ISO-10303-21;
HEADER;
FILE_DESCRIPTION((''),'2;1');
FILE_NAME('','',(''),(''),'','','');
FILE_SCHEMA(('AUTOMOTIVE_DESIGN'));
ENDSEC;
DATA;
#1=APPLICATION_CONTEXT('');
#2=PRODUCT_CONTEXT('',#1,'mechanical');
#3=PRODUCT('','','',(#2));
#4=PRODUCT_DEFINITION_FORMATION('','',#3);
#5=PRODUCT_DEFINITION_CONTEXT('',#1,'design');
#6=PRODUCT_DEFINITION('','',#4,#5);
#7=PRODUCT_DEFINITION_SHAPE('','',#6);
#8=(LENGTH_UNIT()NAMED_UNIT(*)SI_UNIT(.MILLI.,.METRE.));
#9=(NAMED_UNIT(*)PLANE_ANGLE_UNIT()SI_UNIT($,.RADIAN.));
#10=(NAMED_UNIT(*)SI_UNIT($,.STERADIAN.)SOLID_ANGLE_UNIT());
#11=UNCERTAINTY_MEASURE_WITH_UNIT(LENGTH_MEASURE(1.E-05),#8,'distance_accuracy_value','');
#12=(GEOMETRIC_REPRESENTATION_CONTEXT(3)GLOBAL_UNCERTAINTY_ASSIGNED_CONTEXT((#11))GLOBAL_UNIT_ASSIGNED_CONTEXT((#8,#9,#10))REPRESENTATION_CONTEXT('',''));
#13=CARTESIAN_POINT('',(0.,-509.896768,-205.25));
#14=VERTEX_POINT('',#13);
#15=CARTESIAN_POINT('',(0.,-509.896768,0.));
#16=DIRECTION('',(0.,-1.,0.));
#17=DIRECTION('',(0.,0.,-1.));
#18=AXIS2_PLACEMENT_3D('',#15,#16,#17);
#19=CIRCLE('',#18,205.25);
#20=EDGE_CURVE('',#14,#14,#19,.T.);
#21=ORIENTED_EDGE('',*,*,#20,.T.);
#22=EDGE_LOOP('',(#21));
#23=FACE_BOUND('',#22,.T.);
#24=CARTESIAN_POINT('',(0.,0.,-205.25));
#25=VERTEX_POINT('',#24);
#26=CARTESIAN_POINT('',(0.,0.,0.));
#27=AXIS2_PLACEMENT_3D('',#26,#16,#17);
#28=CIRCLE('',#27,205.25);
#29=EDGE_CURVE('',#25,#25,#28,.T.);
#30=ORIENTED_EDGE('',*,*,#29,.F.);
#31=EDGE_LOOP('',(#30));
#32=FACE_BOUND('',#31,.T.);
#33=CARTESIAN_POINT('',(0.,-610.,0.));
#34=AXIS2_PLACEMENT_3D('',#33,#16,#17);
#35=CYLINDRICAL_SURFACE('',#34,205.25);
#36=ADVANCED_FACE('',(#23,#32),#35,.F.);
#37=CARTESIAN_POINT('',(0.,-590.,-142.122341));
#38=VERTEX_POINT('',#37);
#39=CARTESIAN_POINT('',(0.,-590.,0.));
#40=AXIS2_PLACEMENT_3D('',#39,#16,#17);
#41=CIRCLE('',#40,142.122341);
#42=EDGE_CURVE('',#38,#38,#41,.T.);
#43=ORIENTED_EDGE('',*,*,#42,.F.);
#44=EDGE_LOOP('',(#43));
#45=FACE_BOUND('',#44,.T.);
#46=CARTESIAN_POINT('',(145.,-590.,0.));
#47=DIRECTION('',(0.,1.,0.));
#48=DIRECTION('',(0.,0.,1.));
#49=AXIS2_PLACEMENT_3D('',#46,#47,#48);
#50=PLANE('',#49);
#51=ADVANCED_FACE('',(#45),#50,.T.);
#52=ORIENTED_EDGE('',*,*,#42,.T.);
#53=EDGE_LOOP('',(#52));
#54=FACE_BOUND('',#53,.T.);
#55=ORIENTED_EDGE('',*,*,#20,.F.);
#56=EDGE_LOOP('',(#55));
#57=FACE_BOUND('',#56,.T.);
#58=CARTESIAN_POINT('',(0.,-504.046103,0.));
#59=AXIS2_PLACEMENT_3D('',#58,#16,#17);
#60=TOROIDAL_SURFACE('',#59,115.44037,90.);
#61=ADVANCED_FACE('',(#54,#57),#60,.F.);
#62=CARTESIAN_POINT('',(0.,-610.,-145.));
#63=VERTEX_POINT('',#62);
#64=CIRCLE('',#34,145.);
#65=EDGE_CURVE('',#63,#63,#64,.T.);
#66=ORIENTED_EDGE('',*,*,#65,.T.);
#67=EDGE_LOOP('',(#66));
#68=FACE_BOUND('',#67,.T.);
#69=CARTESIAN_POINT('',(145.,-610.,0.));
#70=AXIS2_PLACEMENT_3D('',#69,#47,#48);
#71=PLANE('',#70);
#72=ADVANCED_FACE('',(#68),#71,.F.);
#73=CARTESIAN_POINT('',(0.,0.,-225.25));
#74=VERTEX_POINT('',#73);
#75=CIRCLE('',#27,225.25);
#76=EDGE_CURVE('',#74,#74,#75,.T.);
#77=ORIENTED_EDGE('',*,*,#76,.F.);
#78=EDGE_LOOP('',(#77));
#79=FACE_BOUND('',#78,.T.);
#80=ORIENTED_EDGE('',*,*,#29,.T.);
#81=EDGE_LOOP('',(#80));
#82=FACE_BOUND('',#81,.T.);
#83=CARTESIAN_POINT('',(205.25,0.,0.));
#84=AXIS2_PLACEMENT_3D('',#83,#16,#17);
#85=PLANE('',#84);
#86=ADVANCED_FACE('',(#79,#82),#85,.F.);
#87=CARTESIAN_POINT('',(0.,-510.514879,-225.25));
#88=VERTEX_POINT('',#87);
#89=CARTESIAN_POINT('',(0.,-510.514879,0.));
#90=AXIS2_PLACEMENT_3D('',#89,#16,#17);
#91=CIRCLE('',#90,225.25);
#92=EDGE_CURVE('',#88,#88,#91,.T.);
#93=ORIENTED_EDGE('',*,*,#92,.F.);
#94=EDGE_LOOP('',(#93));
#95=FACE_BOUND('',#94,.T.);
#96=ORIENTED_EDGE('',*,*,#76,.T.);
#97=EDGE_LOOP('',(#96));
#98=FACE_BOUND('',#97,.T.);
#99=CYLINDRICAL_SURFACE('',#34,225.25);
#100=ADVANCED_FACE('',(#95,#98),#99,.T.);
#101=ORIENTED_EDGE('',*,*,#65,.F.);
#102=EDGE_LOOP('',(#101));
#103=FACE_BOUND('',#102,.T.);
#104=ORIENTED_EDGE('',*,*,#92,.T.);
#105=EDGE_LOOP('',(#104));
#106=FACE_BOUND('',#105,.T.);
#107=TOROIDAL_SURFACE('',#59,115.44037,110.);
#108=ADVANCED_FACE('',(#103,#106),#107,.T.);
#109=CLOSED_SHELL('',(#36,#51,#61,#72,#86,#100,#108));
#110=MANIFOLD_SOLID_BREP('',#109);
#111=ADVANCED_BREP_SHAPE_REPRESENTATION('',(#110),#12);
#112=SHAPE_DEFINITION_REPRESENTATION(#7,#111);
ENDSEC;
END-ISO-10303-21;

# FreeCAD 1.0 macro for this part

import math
import FreeCAD as App
import Part
import Sketcher
Q = App.Units.Quantity

doc = App.newDocument("Part")
body = doc.addObject("PartDesign::Body", "Body")

# Sketch on XY plane
sketch1 = body.newObject("Sketcher::SketchObject", "Sketch")
sketch1.AttachmentSupport = (doc.getObject("XY_Plane"), [""])
sketch1.MapMode = "FlatFace"
sketch1.addGeometry([
    Part.LineSegment(App.Vector(225.25, -510.514879, 0), App.Vector(225.25, 0, 0)),  # 0
    Part.LineSegment(App.Vector(225.25, 0, 0), App.Vector(205.25, 0, 0)),  # 1
    Part.LineSegment(App.Vector(205.25, 0, 0), App.Vector(205.25, -509.896768, 0)),  # 2
    Part.ArcOfCircle(Part.Circle(App.Vector(115.44037, -504.046103, 0), App.Vector(0, 0, 1), 90), math.radians(-72.754513), math.radians(-3.727277)),  # 3
    Part.LineSegment(App.Vector(142.122341, -590, 0), App.Vector(0, -590, 0)),  # 4
    Part.LineSegment(App.Vector(0, -590, 0), App.Vector(0, -610, 0)),  # 5
    Part.LineSegment(App.Vector(0, -610, 0), App.Vector(145, -610, 0)),  # 6
    Part.ArcOfCircle(Part.Circle(App.Vector(115.44037, -504.046103, 0), App.Vector(0, 0, 1), 110), math.radians(-74.411654), math.radians(-3.371341)),  # 7
], False)
sketch1.addConstraint([
    Sketcher.Constraint("Coincident", 0, 2, 1, 1),
    Sketcher.Constraint("Coincident", 1, 2, 2, 1),
    Sketcher.Constraint("Coincident", 2, 2, 3, 2),
    Sketcher.Constraint("Coincident", 3, 1, 4, 1),
    Sketcher.Constraint("Coincident", 4, 2, 5, 1),
    Sketcher.Constraint("Coincident", 5, 2, 6, 1),
    Sketcher.Constraint("Coincident", 6, 2, 7, 1),
    Sketcher.Constraint("Coincident", 7, 2, 0, 1),
    Sketcher.Constraint("Vertical", 0),
    Sketcher.Constraint("Horizontal", 1),
    Sketcher.Constraint("Vertical", 2),
    Sketcher.Constraint("Horizontal", 4),
    Sketcher.Constraint("Vertical", 5),
    Sketcher.Constraint("Horizontal", 6),
    Sketcher.Constraint("Coincident", 7, 3, 3, 3),
    Sketcher.Constraint("PointOnObject", 0, 2, -1),
    Sketcher.Constraint("PointOnObject", 4, 2, -2),
    Sketcher.Constraint("Equal", 1, 5),
    Sketcher.Constraint("Radius", 3, Q("90 mm")),
    Sketcher.Constraint("Radius", 7, Q("110 mm")),
    Sketcher.Constraint("DistanceX", 1, 2, 1, 1, Q("20 mm")),
    Sketcher.Constraint("DistanceX", 6, 1, 6, 2, Q("145 mm")),
    Sketcher.Constraint("DistanceY", 3, 1, -1, 1, Q("590 mm")),
    Sketcher.Constraint("DistanceX", -1, 1, 0, 2, Q("225.25 mm")),
    Sketcher.Constraint("DistanceX", 4, 2, 4, 1, Q("142.122341 mm")),
])
revolution = body.newObject("PartDesign::Revolution", "Revolution")
revolution.Profile = sketch1
revolution.ReferenceAxis = (sketch1, ["V_Axis"])
revolution.Angle = 360

doc.recompute()
